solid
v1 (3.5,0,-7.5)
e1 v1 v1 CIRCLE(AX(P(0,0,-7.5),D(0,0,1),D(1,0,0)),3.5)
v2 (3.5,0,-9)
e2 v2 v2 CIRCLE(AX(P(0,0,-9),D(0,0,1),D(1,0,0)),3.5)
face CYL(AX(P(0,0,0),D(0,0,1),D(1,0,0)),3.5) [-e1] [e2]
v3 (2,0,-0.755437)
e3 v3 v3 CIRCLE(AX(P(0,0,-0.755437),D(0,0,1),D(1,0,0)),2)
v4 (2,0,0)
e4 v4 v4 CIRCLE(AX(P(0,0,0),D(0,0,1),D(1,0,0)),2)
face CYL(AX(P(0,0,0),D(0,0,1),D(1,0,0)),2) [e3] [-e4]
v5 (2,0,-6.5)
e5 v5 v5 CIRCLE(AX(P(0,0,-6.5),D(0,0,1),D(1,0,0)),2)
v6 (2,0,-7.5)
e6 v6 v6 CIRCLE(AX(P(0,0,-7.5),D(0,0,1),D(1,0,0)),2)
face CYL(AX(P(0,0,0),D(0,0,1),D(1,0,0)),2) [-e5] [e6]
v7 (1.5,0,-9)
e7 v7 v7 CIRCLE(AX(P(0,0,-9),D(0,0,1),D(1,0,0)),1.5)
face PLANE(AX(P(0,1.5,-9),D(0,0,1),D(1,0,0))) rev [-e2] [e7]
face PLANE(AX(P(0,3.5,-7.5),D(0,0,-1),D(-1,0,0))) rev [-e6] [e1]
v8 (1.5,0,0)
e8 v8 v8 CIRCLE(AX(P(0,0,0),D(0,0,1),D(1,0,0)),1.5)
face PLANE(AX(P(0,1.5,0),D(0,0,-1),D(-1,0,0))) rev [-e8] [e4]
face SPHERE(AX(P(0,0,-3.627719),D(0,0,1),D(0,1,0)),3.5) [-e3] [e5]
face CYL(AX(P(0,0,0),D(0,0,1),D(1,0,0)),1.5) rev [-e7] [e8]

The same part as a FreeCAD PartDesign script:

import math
import FreeCAD as App
import Part
import Sketcher
Q = App.Units.Quantity

doc = App.newDocument("Part")
body = doc.addObject("PartDesign::Body", "Body")

# Sketch on YZ plane
sketch1 = body.newObject("Sketcher::SketchObject", "Sketch")
sketch1.AttachmentSupport = (doc.getObject("YZ_Plane"), [""])
sketch1.MapMode = "FlatFace"
sketch1.addGeometry([
    Part.LineSegment(App.Vector(1.5, 0, 0), App.Vector(1.5, -9, 0)),  # 0
    Part.LineSegment(App.Vector(1.5, -9, 0), App.Vector(3.5, -9, 0)),  # 1
    Part.LineSegment(App.Vector(3.5, -9, 0), App.Vector(3.5, -7.5, 0)),  # 2
    Part.LineSegment(App.Vector(3.5, -7.5, 0), App.Vector(2, -7.5, 0)),  # 3
    Part.LineSegment(App.Vector(2, -7.5, 0), App.Vector(2, -6.5, 0)),  # 4
    Part.ArcOfCircle(Part.Circle(App.Vector(0, -3.6, 0), App.Vector(0, 0, 1), 3.5), math.radians(-55), math.radians(55)),  # 5
    Part.LineSegment(App.Vector(2, -0.8, 0), App.Vector(2, 0, 0)),  # 6
    Part.LineSegment(App.Vector(2, 0, 0), App.Vector(1.5, 0, 0)),  # 7
], False)
sketch1.addConstraint([
    Sketcher.Constraint("Coincident", 0, 2, 1, 1),
    Sketcher.Constraint("Coincident", 1, 2, 2, 1),
    Sketcher.Constraint("Coincident", 2, 2, 3, 1),
    Sketcher.Constraint("Coincident", 3, 2, 4, 1),
    Sketcher.Constraint("Coincident", 4, 2, 5, 1),
    Sketcher.Constraint("Coincident", 5, 2, 6, 1),
    Sketcher.Constraint("Coincident", 6, 2, 7, 1),
    Sketcher.Constraint("Coincident", 7, 2, 0, 1),
    Sketcher.Constraint("Vertical", 0),
    Sketcher.Constraint("Horizontal", 1),
    Sketcher.Constraint("Vertical", 2),
    Sketcher.Constraint("Horizontal", 3),
    Sketcher.Constraint("Vertical", 4),
    Sketcher.Constraint("Vertical", 6),
    Sketcher.Constraint("Horizontal", 7),
    Sketcher.Constraint("PointOnObject", 5, 3, -2),
    Sketcher.Constraint("PointOnObject", 6, 2, -1),
    Sketcher.Constraint("Vertical", 4, 2, 5, 2),
    Sketcher.Constraint("Equal", 3, 2),
    Sketcher.Constraint("Radius", 5, Q("3.5 mm")),
    Sketcher.Constraint("DistanceX", 1, 1, 1, 2, Q("2 mm")),
    Sketcher.Constraint("DistanceY", 0, 2, 0, 1, Q("9 mm")),
    Sketcher.Constraint("DistanceY", 4, 1, 4, 2, Q("1 mm")),
    Sketcher.Constraint("DistanceX", 3, 2, 3, 1, Q("1.5 mm")),
    Sketcher.Constraint("DistanceX", -1, 1, 3, 2, Q("2 mm")),
])
revolution = body.newObject("PartDesign::Revolution", "Revolution")
revolution.Profile = sketch1
revolution.ReferenceAxis = (sketch1, ["V_Axis"])
revolution.Angle = 360

doc.recompute()
